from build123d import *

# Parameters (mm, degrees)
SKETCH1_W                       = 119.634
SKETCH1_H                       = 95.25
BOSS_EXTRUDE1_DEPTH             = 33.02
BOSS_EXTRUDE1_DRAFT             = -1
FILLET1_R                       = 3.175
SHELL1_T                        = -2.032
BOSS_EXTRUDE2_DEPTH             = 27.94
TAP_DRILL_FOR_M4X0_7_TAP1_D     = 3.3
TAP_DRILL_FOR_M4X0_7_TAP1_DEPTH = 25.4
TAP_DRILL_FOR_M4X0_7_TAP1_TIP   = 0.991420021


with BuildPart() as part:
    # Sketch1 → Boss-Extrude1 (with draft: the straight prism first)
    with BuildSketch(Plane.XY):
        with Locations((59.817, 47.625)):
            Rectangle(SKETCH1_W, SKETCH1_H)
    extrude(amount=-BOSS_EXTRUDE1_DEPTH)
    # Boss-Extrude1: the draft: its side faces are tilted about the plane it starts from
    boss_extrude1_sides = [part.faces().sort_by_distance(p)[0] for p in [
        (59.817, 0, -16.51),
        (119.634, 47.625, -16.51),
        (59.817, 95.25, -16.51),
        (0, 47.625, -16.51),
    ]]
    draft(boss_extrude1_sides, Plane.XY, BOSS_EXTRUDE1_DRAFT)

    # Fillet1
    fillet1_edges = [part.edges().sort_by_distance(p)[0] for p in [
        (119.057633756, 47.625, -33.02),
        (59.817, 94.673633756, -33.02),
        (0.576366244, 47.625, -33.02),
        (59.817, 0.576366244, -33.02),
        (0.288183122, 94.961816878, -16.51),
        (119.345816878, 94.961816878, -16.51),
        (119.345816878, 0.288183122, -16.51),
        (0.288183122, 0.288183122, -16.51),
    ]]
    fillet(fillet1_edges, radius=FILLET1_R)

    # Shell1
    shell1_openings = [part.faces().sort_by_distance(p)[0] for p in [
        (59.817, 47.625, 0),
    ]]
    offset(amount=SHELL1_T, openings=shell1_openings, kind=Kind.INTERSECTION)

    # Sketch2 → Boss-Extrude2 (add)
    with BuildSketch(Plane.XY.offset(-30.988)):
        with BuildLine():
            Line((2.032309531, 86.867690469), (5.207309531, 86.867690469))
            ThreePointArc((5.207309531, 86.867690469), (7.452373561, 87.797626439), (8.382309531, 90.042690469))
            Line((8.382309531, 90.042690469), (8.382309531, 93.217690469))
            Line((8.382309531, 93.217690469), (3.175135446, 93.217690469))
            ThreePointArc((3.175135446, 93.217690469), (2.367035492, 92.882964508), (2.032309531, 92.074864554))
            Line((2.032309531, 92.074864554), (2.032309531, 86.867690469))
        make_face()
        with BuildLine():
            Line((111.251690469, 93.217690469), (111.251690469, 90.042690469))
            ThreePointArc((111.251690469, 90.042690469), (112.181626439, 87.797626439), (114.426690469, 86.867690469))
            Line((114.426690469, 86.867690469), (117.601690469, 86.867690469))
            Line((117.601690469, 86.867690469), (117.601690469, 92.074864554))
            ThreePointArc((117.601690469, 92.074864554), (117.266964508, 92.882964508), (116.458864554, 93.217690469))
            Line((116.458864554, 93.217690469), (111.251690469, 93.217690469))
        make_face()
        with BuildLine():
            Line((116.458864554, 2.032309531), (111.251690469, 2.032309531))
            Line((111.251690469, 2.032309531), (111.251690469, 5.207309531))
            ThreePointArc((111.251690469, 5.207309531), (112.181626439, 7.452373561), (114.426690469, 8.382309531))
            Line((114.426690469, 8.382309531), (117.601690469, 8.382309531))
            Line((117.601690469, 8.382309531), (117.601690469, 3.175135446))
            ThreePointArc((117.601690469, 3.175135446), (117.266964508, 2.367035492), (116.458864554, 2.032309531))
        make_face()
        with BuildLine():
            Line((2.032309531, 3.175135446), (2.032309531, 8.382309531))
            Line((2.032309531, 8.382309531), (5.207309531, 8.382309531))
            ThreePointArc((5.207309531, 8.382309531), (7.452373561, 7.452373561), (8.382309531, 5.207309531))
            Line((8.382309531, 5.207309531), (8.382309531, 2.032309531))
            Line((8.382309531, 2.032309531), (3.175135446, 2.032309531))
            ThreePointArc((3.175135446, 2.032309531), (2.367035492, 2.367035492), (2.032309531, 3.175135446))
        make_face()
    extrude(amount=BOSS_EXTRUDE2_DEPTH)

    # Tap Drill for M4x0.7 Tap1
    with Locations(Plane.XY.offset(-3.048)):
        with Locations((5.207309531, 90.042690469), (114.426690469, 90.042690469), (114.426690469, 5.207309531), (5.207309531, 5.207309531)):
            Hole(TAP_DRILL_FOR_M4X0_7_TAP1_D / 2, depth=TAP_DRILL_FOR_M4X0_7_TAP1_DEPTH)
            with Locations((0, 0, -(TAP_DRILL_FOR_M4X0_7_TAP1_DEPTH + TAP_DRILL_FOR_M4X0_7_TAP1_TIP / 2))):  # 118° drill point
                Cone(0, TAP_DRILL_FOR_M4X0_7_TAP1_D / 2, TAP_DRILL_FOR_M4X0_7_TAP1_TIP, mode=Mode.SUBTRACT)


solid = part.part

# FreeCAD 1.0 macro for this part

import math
import FreeCAD as App
import Part
import Sketcher
Q = App.Units.Quantity


def edges_at(feature, points):
    """Names of the edges that pass closest to the given points."""
    edges = feature.Shape.Edges
    near = lambda p: min(range(len(edges)), key=lambda i: edges[i].distToShape(Part.Vertex(*p))[0])
    return sorted({f"Edge{near(p) + 1}" for p in points})


def faces_at(feature, points):
    """Names of the faces that lie closest to the given points."""
    faces = feature.Shape.Faces
    near = lambda p: min(range(len(faces)), key=lambda i: faces[i].distToShape(Part.Vertex(*p))[0])
    return sorted({f"Face{near(p) + 1}" for p in points})

doc = App.newDocument("Part")
body = doc.addObject("PartDesign::Body", "Body")

# Sketch on XY plane
sketch1 = doc.addObject("Sketcher::SketchObject", "Sketch")
body.addObject(sketch1)
sketch1.AttachmentSupport = (doc.XY_Plane, [""])
sketch1.MapMode = "FlatFace"
sketch1.addGeometry([
    Part.LineSegment(App.Vector(0, 95.25, 0), App.Vector(0, 0, 0)),
    Part.LineSegment(App.Vector(0, 0, 0), App.Vector(119.634, 0, 0)),
    Part.LineSegment(App.Vector(119.634, 0, 0), App.Vector(119.634, 95.25, 0)),
    Part.LineSegment(App.Vector(119.634, 95.25, 0), App.Vector(0, 95.25, 0)),
], False)
sketch1.addConstraint([
    Sketcher.Constraint("Coincident", 0, 2, 1, 1),
    Sketcher.Constraint("Coincident", 1, 2, 2, 1),
    Sketcher.Constraint("Coincident", 2, 2, 3, 1),
    Sketcher.Constraint("Coincident", 3, 2, 0, 1),
    Sketcher.Constraint("Vertical", 0),
    Sketcher.Constraint("Horizontal", 1),
    Sketcher.Constraint("Vertical", 2),
    Sketcher.Constraint("Horizontal", 3),
    Sketcher.Constraint("Coincident", 0, 2, -1, 1),
    Sketcher.Constraint("DistanceX", 1, 1, 1, 2, Q("4.71 in")),
    Sketcher.Constraint("DistanceY", 0, 2, 0, 1, Q("3.75 in")),
])
pad1 = doc.addObject("PartDesign::Pad", "Pad")
body.addObject(pad1)
pad1.Profile = sketch1
pad1.Length = Q("1.3 in")
pad1.Reversed = True
doc.recompute()

draft = doc.addObject("PartDesign::Draft", "Draft")
body.addObject(draft)
draft.Base = (pad1, faces_at(pad1, [
    (59.817, 0, -16.51),
    (119.634, 47.625, -16.51),
    (59.817, 95.25, -16.51),
    (0, 47.625, -16.51),
]))
draft.NeutralPlane = (doc.XY_Plane, [""])
draft.Angle = 1
draft.Reversed = True
doc.recompute()

fillet = doc.addObject("PartDesign::Fillet", "Fillet")
body.addObject(fillet)
fillet.Base = (draft, edges_at(draft, [
    (119.058, 47.625, -33.02),
    (59.817, 94.674, -33.02),
    (0.576, 47.625, -33.02),
    (59.817, 0.576, -33.02),
    (0.288, 94.962, -16.51),
    (119.346, 94.962, -16.51),
    (119.346, 0.288, -16.51),
    (0.288, 0.288, -16.51),
]))
fillet.Radius = Q("0.125 in")
doc.recompute()

thickness = doc.addObject("PartDesign::Thickness", "Thickness")
body.addObject(thickness)
thickness.Base = (fillet, faces_at(fillet, [(59.817, 47.625, 0)]))
thickness.Value = Q("0.08 in")
thickness.Reversed = True
thickness.Join = "Intersection"

# Sketch on XY plane
sketch2 = doc.addObject("Sketcher::SketchObject", "Sketch001")
body.addObject(sketch2)
sketch2.AttachmentSupport = (doc.XY_Plane, [""])
sketch2.MapMode = "FlatFace"
sketch2.AttachmentOffset = App.Placement(App.Vector(0, 0, -1.22 * 25.4), App.Rotation())
sketch2.addGeometry([
    Part.LineSegment(App.Vector(2.03231, 86.86769, 0), App.Vector(5.20731, 86.86769, 0)),  # 0
    Part.ArcOfCircle(Part.Circle(App.Vector(5.20731, 90.04269, 0), App.Vector(0, 0, 1), 3.175), math.radians(-90), math.radians(0)),  # 1
    Part.LineSegment(App.Vector(8.38231, 90.04269, 0), App.Vector(8.38231, 93.21769, 0)),  # 2
    Part.LineSegment(App.Vector(8.38231, 93.21769, 0), App.Vector(3.175135, 93.21769, 0)),  # 3
    Part.ArcOfCircle(Part.Circle(App.Vector(3.175135, 92.074865, 0), App.Vector(0, 0, 1), 1.142826), math.radians(90), math.radians(180)),  # 4
    Part.LineSegment(App.Vector(2.03231, 92.074865, 0), App.Vector(2.03231, 86.86769, 0)),  # 5
    Part.LineSegment(App.Vector(111.25169, 93.21769, 0), App.Vector(111.25169, 90.04269, 0)),  # 6
    Part.ArcOfCircle(Part.Circle(App.Vector(114.42669, 90.04269, 0), App.Vector(0, 0, 1), 3.175), math.radians(-180), math.radians(-90)),  # 7
    Part.LineSegment(App.Vector(114.42669, 86.86769, 0), App.Vector(117.60169, 86.86769, 0)),  # 8
    Part.LineSegment(App.Vector(117.60169, 86.86769, 0), App.Vector(117.60169, 92.074865, 0)),  # 9
    Part.ArcOfCircle(Part.Circle(App.Vector(116.458865, 92.074865, 0), App.Vector(0, 0, 1), 1.142826), math.radians(0), math.radians(90)),  # 10
    Part.LineSegment(App.Vector(116.458865, 93.21769, 0), App.Vector(111.25169, 93.21769, 0)),  # 11
    Part.LineSegment(App.Vector(111.25169, 2.03231, 0), App.Vector(116.458865, 2.03231, 0)),  # 12
    Part.ArcOfCircle(Part.Circle(App.Vector(116.458865, 3.175135, 0), App.Vector(0, 0, 1), 1.142826), math.radians(-90), math.radians(0)),  # 13
    Part.LineSegment(App.Vector(117.60169, 3.175135, 0), App.Vector(117.60169, 8.38231, 0)),  # 14
    Part.LineSegment(App.Vector(117.60169, 8.38231, 0), App.Vector(114.42669, 8.38231, 0)),  # 15
    Part.ArcOfCircle(Part.Circle(App.Vector(114.42669, 5.20731, 0), App.Vector(0, 0, 1), 3.175), math.radians(90), math.radians(180)),  # 16
    Part.LineSegment(App.Vector(111.25169, 5.20731, 0), App.Vector(111.25169, 2.03231, 0)),  # 17
    Part.LineSegment(App.Vector(2.03231, 8.38231, 0), App.Vector(2.03231, 3.175135, 0)),  # 18
    Part.ArcOfCircle(Part.Circle(App.Vector(3.175135, 3.175135, 0), App.Vector(0, 0, 1), 1.142826), math.radians(-180), math.radians(-90)),  # 19
    Part.LineSegment(App.Vector(3.175135, 2.03231, 0), App.Vector(8.38231, 2.03231, 0)),  # 20
    Part.LineSegment(App.Vector(8.38231, 2.03231, 0), App.Vector(8.38231, 5.20731, 0)),  # 21
    Part.ArcOfCircle(Part.Circle(App.Vector(5.20731, 5.20731, 0), App.Vector(0, 0, 1), 3.175), math.radians(0), math.radians(90)),  # 22
    Part.LineSegment(App.Vector(5.20731, 8.38231, 0), App.Vector(2.03231, 8.38231, 0)),  # 23
], False)
sketch2.addConstraint([
    Sketcher.Constraint("Tangent", 0, 2, 1, 1),
    Sketcher.Constraint("Tangent", 1, 2, 2, 1),
    Sketcher.Constraint("Coincident", 2, 2, 3, 1),
    Sketcher.Constraint("Tangent", 3, 2, 4, 1),
    Sketcher.Constraint("Tangent", 4, 2, 5, 1),
    Sketcher.Constraint("Coincident", 5, 2, 0, 1),
    Sketcher.Constraint("Tangent", 6, 2, 7, 1),
    Sketcher.Constraint("Tangent", 7, 2, 8, 1),
    Sketcher.Constraint("Coincident", 8, 2, 9, 1),
    Sketcher.Constraint("Tangent", 9, 2, 10, 1),
    Sketcher.Constraint("Tangent", 10, 2, 11, 1),
    Sketcher.Constraint("Coincident", 11, 2, 6, 1),
    Sketcher.Constraint("Tangent", 12, 2, 13, 1),
    Sketcher.Constraint("Tangent", 13, 2, 14, 1),
    Sketcher.Constraint("Coincident", 14, 2, 15, 1),
    Sketcher.Constraint("Tangent", 15, 2, 16, 1),
    Sketcher.Constraint("Tangent", 16, 2, 17, 1),
    Sketcher.Constraint("Coincident", 17, 2, 12, 1),
    Sketcher.Constraint("Tangent", 18, 2, 19, 1),
    Sketcher.Constraint("Tangent", 19, 2, 20, 1),
    Sketcher.Constraint("Coincident", 20, 2, 21, 1),
    Sketcher.Constraint("Tangent", 21, 2, 22, 1),
    Sketcher.Constraint("Tangent", 22, 2, 23, 1),
    Sketcher.Constraint("Coincident", 23, 2, 18, 1),
    Sketcher.Constraint("Horizontal", 0),
    Sketcher.Constraint("Vertical", 2),
    Sketcher.Constraint("Horizontal", 3),
    Sketcher.Constraint("Vertical", 5),
    Sketcher.Constraint("Vertical", 6),
    Sketcher.Constraint("Horizontal", 8),
    Sketcher.Constraint("Vertical", 9),
    Sketcher.Constraint("Horizontal", 11),
    Sketcher.Constraint("Horizontal", 12),
    Sketcher.Constraint("Vertical", 14),
    Sketcher.Constraint("Horizontal", 15),
    Sketcher.Constraint("Vertical", 17),
    Sketcher.Constraint("Vertical", 18),
    Sketcher.Constraint("Horizontal", 20),
    Sketcher.Constraint("Vertical", 21),
    Sketcher.Constraint("Horizontal", 23),
    Sketcher.Constraint("Equal", 1, 7),
    Sketcher.Constraint("Equal", 4, 10),
    Sketcher.Constraint("Equal", 10, 13),
    Sketcher.Constraint("Equal", 7, 16),
    Sketcher.Constraint("Equal", 13, 19),
    Sketcher.Constraint("Equal", 16, 22),
    Sketcher.Constraint("Horizontal", 1, 3, 7, 3),
    Sketcher.Constraint("Horizontal", 4, 3, 10, 3),
    Sketcher.Constraint("Horizontal", 13, 3, 19, 3),
    Sketcher.Constraint("Horizontal", 16, 3, 22, 3),
    Sketcher.Constraint("Vertical", 10, 3, 13, 3),
    Sketcher.Constraint("Vertical", 7, 3, 16, 3),
    Sketcher.Constraint("Vertical", 4, 3, 19, 3),
    Sketcher.Constraint("Vertical", 1, 3, 22, 3),
    Sketcher.Constraint("Equal", 0, 8),
    Sketcher.Constraint("Equal", 23, 2),
    Sketcher.Constraint("Equal", 9, 14),
    Sketcher.Constraint("Radius", 1, Q("0.125 in")),
    Sketcher.Constraint("DistanceX", 0, 1, 0, 2, Q("0.125 in")),
    Sketcher.Constraint("Radius", 4, Q("1.142826 mm")),
    Sketcher.Constraint("DistanceX", -1, 1, 1, 3, Q("5.20731 mm")),
    Sketcher.Constraint("DistanceY", -1, 1, 1, 3, Q("90.04269 mm")),
    Sketcher.Constraint("DistanceX", -1, 1, 7, 3, Q("114.42669 mm")),
    Sketcher.Constraint("DistanceY", -1, 1, 16, 3, Q("5.20731 mm")),
])
pad2 = doc.addObject("PartDesign::Pad", "Pad001")
body.addObject(pad2)
pad2.Profile = sketch2
pad2.Length = Q("1.1 in")

# Sketch on XY plane
sketch3 = doc.addObject("Sketcher::SketchObject", "Sketch002")
body.addObject(sketch3)
sketch3.AttachmentSupport = (doc.XY_Plane, [""])
sketch3.MapMode = "FlatFace"
sketch3.AttachmentOffset = App.Placement(App.Vector(0, 0, -0.12 * 25.4), App.Rotation())
sketch3.addGeometry([
    Part.Circle(App.Vector(5.20731, 90.04269, 0), App.Vector(0, 0, 1), 1.65),
    Part.Circle(App.Vector(114.42669, 90.04269, 0), App.Vector(0, 0, 1), 1.65),
    Part.Circle(App.Vector(114.42669, 5.20731, 0), App.Vector(0, 0, 1), 1.65),
    Part.Circle(App.Vector(5.20731, 5.20731, 0), App.Vector(0, 0, 1), 1.65),
], False)
sketch3.addConstraint([
    Sketcher.Constraint("Equal", 0, 1),
    Sketcher.Constraint("Equal", 1, 2),
    Sketcher.Constraint("Equal", 2, 3),
    Sketcher.Constraint("Horizontal", 0, 3, 1, 3),
    Sketcher.Constraint("Horizontal", 2, 3, 3, 3),
    Sketcher.Constraint("Vertical", 1, 3, 2, 3),
    Sketcher.Constraint("Vertical", 0, 3, 3, 3),
    Sketcher.Constraint("Diameter", 0, Q("3.3 mm")),
    Sketcher.Constraint("DistanceX", -1, 1, 0, 3, Q("5.20731 mm")),
    Sketcher.Constraint("DistanceY", -1, 1, 0, 3, Q("90.04269 mm")),
    Sketcher.Constraint("DistanceX", -1, 1, 1, 3, Q("114.42669 mm")),
    Sketcher.Constraint("DistanceY", -1, 1, 2, 3, Q("5.20731 mm")),
])
doc.recompute()
hole = doc.addObject("PartDesign::Hole", "Hole")
body.addObject(hole)
hole.Profile = sketch3
hole.ThreadType = "None"
hole.Diameter = 3.3
hole.DepthType = "Dimension"
hole.Depth = Q("1 in")
hole.DrillPoint = "Angled"
hole.DrillPointAngle = 118

doc.recompute()
